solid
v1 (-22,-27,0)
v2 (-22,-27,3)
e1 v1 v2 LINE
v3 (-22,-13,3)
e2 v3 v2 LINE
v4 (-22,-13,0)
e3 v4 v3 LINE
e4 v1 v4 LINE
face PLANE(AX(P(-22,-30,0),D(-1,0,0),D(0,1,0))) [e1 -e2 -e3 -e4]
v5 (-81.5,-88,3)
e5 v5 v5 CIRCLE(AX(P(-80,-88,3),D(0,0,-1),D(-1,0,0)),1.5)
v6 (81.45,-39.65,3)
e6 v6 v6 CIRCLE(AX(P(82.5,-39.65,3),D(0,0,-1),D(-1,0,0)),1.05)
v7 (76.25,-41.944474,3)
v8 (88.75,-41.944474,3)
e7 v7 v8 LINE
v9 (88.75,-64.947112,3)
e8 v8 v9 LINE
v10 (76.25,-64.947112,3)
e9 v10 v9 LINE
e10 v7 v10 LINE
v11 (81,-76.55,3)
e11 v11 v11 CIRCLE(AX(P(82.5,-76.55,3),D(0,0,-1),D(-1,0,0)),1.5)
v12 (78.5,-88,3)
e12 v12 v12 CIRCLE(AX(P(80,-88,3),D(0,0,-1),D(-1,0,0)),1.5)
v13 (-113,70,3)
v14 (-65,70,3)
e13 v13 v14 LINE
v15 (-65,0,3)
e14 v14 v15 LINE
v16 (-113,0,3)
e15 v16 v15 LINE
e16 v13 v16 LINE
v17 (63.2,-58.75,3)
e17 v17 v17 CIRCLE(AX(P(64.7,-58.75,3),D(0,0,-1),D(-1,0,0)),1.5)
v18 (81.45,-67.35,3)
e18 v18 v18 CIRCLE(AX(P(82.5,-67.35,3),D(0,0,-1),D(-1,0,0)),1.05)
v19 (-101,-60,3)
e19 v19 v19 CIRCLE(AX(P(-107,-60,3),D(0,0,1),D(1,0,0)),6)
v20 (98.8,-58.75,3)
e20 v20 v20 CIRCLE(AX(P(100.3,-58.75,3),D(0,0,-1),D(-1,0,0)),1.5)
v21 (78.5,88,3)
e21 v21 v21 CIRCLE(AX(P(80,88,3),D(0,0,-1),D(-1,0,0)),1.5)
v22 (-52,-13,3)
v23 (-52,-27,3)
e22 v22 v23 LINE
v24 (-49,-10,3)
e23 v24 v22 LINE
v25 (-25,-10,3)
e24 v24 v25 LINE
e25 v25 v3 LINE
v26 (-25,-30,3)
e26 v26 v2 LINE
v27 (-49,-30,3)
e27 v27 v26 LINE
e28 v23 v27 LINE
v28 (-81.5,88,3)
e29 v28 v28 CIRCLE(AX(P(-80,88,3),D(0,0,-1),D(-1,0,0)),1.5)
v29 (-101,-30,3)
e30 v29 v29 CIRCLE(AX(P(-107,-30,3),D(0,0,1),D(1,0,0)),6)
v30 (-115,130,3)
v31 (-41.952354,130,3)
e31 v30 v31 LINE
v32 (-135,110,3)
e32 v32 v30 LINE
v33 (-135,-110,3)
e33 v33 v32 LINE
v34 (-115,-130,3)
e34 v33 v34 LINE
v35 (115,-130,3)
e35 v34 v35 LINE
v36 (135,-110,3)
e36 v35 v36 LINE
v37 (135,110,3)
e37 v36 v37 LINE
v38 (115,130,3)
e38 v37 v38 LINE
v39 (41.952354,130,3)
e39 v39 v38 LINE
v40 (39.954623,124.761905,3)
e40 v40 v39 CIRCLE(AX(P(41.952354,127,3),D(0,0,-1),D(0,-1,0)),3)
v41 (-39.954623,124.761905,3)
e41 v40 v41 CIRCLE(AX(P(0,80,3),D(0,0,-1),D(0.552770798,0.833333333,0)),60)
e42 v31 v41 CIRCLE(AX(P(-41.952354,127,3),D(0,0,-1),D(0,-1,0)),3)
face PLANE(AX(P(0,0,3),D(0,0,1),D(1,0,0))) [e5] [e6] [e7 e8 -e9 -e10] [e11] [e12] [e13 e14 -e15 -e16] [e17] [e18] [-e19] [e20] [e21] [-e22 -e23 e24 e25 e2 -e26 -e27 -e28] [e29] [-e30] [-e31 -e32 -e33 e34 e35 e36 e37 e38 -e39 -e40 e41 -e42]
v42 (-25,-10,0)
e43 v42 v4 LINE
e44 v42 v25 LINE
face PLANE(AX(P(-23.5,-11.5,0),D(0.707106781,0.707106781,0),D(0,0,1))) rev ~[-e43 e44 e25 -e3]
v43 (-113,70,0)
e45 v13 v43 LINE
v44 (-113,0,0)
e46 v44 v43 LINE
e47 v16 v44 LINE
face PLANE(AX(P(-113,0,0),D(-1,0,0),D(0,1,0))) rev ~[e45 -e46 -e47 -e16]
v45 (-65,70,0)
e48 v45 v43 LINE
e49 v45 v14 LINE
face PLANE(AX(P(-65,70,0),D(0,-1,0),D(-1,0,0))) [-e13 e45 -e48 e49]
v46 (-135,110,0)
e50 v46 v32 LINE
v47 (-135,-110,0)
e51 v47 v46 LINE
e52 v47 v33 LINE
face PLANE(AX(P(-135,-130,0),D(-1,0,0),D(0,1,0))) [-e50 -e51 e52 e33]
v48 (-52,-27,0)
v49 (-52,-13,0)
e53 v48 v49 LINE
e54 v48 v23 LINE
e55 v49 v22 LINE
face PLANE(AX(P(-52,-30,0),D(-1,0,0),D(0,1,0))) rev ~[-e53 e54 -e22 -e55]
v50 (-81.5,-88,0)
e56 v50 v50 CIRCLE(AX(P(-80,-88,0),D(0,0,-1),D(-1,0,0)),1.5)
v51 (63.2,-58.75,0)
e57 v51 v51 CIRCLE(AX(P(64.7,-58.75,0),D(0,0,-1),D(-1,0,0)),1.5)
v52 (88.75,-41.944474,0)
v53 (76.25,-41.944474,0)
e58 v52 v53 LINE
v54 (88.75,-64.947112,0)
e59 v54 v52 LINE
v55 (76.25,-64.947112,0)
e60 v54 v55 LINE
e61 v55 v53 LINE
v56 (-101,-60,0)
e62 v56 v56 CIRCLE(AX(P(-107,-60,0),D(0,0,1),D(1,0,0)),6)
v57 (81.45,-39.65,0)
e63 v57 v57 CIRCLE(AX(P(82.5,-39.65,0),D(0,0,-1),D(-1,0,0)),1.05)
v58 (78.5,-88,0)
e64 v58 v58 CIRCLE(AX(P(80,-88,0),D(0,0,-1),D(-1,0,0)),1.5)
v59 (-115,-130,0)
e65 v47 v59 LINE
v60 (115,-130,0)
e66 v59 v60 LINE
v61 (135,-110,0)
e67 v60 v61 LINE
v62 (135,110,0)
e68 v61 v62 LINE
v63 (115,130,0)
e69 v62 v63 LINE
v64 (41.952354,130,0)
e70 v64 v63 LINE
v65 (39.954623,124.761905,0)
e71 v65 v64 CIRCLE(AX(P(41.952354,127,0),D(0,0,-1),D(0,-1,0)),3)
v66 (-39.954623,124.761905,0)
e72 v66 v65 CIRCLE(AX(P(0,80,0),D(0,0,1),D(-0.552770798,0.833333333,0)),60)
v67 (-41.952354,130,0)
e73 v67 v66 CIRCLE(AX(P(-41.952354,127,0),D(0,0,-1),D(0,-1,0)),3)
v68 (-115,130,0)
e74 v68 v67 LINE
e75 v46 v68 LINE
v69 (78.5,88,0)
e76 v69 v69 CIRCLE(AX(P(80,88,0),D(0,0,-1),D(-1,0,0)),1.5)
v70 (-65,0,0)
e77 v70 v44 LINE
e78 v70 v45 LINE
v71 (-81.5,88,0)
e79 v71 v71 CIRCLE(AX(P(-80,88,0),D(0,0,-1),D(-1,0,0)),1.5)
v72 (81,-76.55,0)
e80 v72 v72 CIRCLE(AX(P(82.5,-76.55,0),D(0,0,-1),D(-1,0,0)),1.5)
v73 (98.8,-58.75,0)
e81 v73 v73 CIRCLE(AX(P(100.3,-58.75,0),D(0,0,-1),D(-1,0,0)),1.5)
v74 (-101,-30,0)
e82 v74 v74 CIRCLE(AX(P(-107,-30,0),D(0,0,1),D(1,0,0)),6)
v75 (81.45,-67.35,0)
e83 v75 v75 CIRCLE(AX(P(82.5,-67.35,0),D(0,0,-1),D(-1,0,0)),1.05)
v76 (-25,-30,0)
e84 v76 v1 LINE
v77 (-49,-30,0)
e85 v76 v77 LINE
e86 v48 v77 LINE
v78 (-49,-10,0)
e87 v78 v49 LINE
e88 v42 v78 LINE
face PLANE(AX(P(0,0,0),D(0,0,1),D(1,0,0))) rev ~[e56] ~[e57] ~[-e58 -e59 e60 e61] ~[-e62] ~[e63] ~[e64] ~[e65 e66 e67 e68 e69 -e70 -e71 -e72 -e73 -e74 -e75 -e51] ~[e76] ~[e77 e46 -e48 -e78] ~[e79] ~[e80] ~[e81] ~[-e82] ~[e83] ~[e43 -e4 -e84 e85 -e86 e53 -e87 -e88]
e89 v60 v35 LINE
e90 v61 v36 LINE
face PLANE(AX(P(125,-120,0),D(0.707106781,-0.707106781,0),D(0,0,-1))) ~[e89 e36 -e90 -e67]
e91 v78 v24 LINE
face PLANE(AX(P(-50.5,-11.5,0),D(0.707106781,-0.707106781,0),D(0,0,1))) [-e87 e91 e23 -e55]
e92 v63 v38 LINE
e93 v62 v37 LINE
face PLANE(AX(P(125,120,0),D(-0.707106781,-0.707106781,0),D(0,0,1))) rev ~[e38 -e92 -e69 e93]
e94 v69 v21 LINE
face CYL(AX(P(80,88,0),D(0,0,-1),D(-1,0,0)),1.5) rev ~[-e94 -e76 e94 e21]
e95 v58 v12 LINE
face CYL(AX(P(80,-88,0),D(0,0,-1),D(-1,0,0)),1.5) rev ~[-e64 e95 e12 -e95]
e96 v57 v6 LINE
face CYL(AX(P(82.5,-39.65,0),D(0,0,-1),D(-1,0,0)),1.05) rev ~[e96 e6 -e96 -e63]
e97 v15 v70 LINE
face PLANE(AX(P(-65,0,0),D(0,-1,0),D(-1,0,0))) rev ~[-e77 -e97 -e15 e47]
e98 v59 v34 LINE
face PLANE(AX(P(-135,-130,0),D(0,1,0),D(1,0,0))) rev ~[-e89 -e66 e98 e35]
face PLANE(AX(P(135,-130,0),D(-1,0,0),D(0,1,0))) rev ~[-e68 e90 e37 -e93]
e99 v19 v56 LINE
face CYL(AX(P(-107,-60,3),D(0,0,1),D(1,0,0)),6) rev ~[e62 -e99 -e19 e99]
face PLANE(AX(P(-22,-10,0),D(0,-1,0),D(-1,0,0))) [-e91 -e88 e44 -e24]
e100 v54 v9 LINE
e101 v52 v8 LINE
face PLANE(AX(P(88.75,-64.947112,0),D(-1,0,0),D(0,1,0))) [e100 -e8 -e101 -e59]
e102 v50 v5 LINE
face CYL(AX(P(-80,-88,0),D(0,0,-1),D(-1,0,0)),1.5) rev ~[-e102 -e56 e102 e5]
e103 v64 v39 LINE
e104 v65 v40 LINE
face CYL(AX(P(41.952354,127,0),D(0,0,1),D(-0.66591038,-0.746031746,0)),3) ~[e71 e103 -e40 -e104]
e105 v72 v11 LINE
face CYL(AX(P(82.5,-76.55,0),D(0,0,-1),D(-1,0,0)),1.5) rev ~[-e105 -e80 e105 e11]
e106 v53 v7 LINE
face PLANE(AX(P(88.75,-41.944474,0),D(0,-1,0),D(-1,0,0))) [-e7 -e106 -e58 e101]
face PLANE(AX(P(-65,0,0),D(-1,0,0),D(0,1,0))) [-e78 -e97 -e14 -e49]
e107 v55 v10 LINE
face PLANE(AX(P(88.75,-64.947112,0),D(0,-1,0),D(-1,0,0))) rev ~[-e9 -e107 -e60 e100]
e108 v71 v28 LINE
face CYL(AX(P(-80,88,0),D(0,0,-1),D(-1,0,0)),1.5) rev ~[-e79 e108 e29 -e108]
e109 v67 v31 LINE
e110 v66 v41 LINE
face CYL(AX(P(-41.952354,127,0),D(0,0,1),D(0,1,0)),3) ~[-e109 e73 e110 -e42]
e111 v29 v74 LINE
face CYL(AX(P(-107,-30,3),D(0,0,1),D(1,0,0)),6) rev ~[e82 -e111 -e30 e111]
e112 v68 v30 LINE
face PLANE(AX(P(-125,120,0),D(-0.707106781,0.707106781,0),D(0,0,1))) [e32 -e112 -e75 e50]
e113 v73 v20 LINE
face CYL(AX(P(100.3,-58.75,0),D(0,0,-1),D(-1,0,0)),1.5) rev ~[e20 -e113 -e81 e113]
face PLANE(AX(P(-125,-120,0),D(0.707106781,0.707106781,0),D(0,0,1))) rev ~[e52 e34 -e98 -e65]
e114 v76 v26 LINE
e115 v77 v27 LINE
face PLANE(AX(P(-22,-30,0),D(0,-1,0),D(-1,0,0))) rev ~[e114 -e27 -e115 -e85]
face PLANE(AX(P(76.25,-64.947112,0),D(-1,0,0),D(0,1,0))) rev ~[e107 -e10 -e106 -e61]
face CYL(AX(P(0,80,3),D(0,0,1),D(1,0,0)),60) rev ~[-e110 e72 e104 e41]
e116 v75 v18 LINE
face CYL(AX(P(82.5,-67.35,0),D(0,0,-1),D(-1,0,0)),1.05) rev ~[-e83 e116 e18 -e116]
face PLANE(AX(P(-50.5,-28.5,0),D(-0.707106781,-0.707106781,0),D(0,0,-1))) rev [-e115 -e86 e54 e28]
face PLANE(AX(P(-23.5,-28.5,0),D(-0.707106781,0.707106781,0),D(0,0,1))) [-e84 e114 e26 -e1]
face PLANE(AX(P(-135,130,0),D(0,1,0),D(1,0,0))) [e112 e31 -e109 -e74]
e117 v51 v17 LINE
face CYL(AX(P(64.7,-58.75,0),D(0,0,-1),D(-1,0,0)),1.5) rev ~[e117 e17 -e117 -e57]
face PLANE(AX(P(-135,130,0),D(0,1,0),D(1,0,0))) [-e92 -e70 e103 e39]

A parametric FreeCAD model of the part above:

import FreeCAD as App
import Part
import Sketcher

V = App.Vector
Q = App.Units.Quantity


def edges_at(feature, points):
    """Names of the edges that pass closest to the given points."""
    edges = feature.Shape.Edges
    near = lambda p: min(range(len(edges)), key=lambda i: edges[i].distToShape(Part.Vertex(*p))[0])
    return sorted({f"Edge{near(p) + 1}" for p in points})


def add_polygon(sketch, points):
    """Adds a closed chain of lines whose ends are joined by coincident constraints."""
    first, n = sketch.GeometryCount, len(points)
    for a, b in zip(points, points[1:] + points[:1]):
        sketch.addGeometry(Part.LineSegment(App.Vector(*a, 0), App.Vector(*b, 0)), False)
    for i in range(n):
        sketch.addConstraint(Sketcher.Constraint("Coincident", first + i, 2, first + (i + 1) % n, 1))

doc = App.newDocument("Part")
body = doc.addObject("PartDesign::Body", "Body")

sketch1 = body.newObject("Sketcher::SketchObject", "Sketch")
sketch1.AttachmentSupport = (doc.getObject("XY_Plane"), [""])
sketch1.MapMode = "FlatFace"
add_polygon(sketch1, [(-135, 130), (-135, -130), (135, -130), (135, 130)])
sketch1.addConstraint([
    Sketcher.Constraint("Vertical", 0),
    Sketcher.Constraint("Horizontal", 1),
    Sketcher.Constraint("Vertical", 2),
    Sketcher.Constraint("Horizontal", 3),
    Sketcher.Constraint("Symmetric", 0, 2, 2, 2, -1, 1),
    Sketcher.Constraint("DistanceX", 1, 1, 1, 2, Q("270 mm")),
    Sketcher.Constraint("DistanceY", 0, 2, 0, 1, Q("260 mm")),
])
pad1 = body.newObject("PartDesign::Pad", "Pad")
pad1.Profile = sketch1
pad1.Length = 3
doc.recompute()

chamfer = body.newObject("PartDesign::Chamfer", "Chamfer")
chamfer.Base = (pad1, edges_at(pad1, [
    (135, -130, 1.5),
    (-135, -130, 1.5),
    (-135, 130, 1.5),
    (135, 130, 1.5),
]))
chamfer.Size = 20

sketch2 = body.newObject("Sketcher::SketchObject", "Sketch001")
sketch2.AttachmentSupport = (doc.getObject("XY_Plane"), [""])
sketch2.MapMode = "FlatFace"
sketch2.AttachmentOffset = App.Placement(V(0, 0, 3), App.Rotation())
sketch2.addGeometry(Part.Circle(V(0, 80, 0), V(0, 0, 1), 60), False)
sketch2.addConstraint([
    Sketcher.Constraint("PointOnObject", 0, 3, -2),
    Sketcher.Constraint("Diameter", 0, Q("120 mm")),
    Sketcher.Constraint("DistanceY", -1, 1, 0, 3, Q("80 mm")),
])
pocket1 = body.newObject("PartDesign::Pocket", "Pocket")
pocket1.Profile = sketch2
pocket1.Length = 10
doc.recompute()

fillet = body.newObject("PartDesign::Fillet", "Fillet")
fillet.Base = (pocket1, edges_at(pocket1, [(33.166, 130, 1.5), (-33.166, 130, 1.5)]))
fillet.Radius = 3

sketch3 = body.newObject("Sketcher::SketchObject", "Sketch002")
sketch3.AttachmentSupport = (doc.getObject("XY_Plane"), [""])
sketch3.MapMode = "FlatFace"
sketch3.addGeometry(Part.Circle(V(64.7, -58.8, 0), V(0, 0, 1), 1.5), False)
sketch3.addGeometry(Part.Circle(V(100.3, -58.8, 0), V(0, 0, 1), 1.5), False)
sketch3.addGeometry(Part.Circle(V(82.5, -76.5, 0), V(0, 0, 1), 1.5), False)
sketch3.addGeometry(Part.Circle(V(82.5, -39.6, 0), V(0, 0, 1), 1.1), False)
sketch3.addGeometry(Part.Circle(V(82.5, -67.3, 0), V(0, 0, 1), 1.1), False)
add_polygon(sketch3, [(88.8, -41.9), (88.8, -64.9), (76.2, -64.9), (76.2, -41.9)])
sketch3.addConstraint([
    Sketcher.Constraint("Vertical", 5),
    Sketcher.Constraint("Horizontal", 6),
    Sketcher.Constraint("Vertical", 7),
    Sketcher.Constraint("Horizontal", 8),
    Sketcher.Constraint("Equal", 0, 1),
    Sketcher.Constraint("Equal", 1, 2),
    Sketcher.Constraint("Equal", 3, 4),
    Sketcher.Constraint("Horizontal", 0, 3, 1, 3),
    Sketcher.Constraint("Vertical", 2, 3, 3, 3),
    Sketcher.Constraint("Vertical", 3, 3, 4, 3),
    Sketcher.Constraint("Diameter", 0, Q("3 mm")),
    Sketcher.Constraint("Diameter", 3, Q("2.1 mm")),
    Sketcher.Constraint("DistanceX", 6, 2, 6, 1, Q("12.5 mm")),
    Sketcher.Constraint("DistanceX", -1, 1, 0, 3, Q("64.7 mm")),
    Sketcher.Constraint("DistanceX", -1, 1, 1, 3, Q("100.3 mm")),
    Sketcher.Constraint("DistanceX", -1, 1, 2, 3, Q("82.5 mm")),
    Sketcher.Constraint("DistanceY", 2, 3, 0, 3, Q("17.8 mm")),
    Sketcher.Constraint("DistanceY", 0, 3, 3, 3, Q("19.1 mm")),
    Sketcher.Constraint("DistanceY", 2, 3, 4, 3, Q("9.2 mm")),
    Sketcher.Constraint("DistanceY", 0, 3, -1, 1, Q("58.75 mm")),
    Sketcher.Constraint("DistanceX", -1, 1, 5, 2, Q("88.75 mm")),
    Sketcher.Constraint("DistanceY", 5, 2, 5, 1, Q("23.002638 mm")),
    Sketcher.Constraint("DistanceY", 5, 2, -1, 1, Q("64.947112 mm")),
])
pocket2 = body.newObject("PartDesign::Pocket", "Pocket001")
pocket2.Profile = sketch3
pocket2.Length = 10
pocket2.Reversed = True

sketch4 = body.newObject("Sketcher::SketchObject", "Sketch003")
sketch4.AttachmentSupport = (doc.getObject("XY_Plane"), [""])
sketch4.MapMode = "FlatFace"
add_polygon(sketch4, [(-65, 70), (-65, 0), (-113, 0), (-113, 70)])
sketch4.addConstraint([
    Sketcher.Constraint("Vertical", 0),
    Sketcher.Constraint("Horizontal", 1),
    Sketcher.Constraint("Vertical", 2),
    Sketcher.Constraint("Horizontal", 3),
    Sketcher.Constraint("PointOnObject", 0, 2, -1),
    Sketcher.Constraint("DistanceX", 1, 2, 1, 1, Q("48 mm")),
    Sketcher.Constraint("DistanceY", 0, 2, 0, 1, Q("70 mm")),
    Sketcher.Constraint("DistanceX", 0, 2, -1, 1, Q("65 mm")),
])
pocket3 = body.newObject("PartDesign::Pocket", "Pocket002")
pocket3.Profile = sketch4
pocket3.Length = 0.1
pocket3.Reversed = True

sketch5 = body.newObject("Sketcher::SketchObject", "Sketch004")
sketch5.AttachmentSupport = (doc.getObject("XY_Plane"), [""])
sketch5.MapMode = "FlatFace"
add_polygon(sketch5, [(-65, 70), (-65, 0), (-113, 0), (-113, 70)])
sketch5.addConstraint([
    Sketcher.Constraint("Vertical", 0),
    Sketcher.Constraint("Horizontal", 1),
    Sketcher.Constraint("Vertical", 2),
    Sketcher.Constraint("Horizontal", 3),
    Sketcher.Constraint("PointOnObject", 0, 2, -1),
    Sketcher.Constraint("DistanceX", 1, 2, 1, 1, Q("48 mm")),
    Sketcher.Constraint("DistanceY", 0, 2, 0, 1, Q("70 mm")),
    Sketcher.Constraint("DistanceX", 0, 2, -1, 1, Q("65 mm")),
])
pocket4 = body.newObject("PartDesign::Pocket", "Pocket003")
pocket4.Profile = sketch5
pocket4.Type = "ThroughAll"
pocket4.Reversed = True

sketch6 = body.newObject("Sketcher::SketchObject", "Sketch005")
sketch6.AttachmentSupport = (doc.getObject("XY_Plane"), [""])
sketch6.MapMode = "FlatFace"
sketch6.AttachmentOffset = App.Placement(V(0, 0, 3), App.Rotation())
sketch6.addGeometry([
    Part.Circle(V(-107, -30, 0), V(0, 0, 1), 6),
    Part.Circle(V(-107, -60, 0), V(0, 0, 1), 6),
], False)
sketch6.addConstraint([
    Sketcher.Constraint("Equal", 0, 1),
    Sketcher.Constraint("Vertical", 0, 3, 1, 3),
    Sketcher.Constraint("Diameter", 0, Q("12 mm")),
    Sketcher.Constraint("DistanceX", 0, 3, -1, 1, Q("107 mm")),
    Sketcher.Constraint("DistanceY", 0, 3, -1, 1, Q("30 mm")),
    Sketcher.Constraint("DistanceY", 1, 3, -1, 1, Q("60 mm")),
])
pocket5 = body.newObject("PartDesign::Pocket", "Pocket004")
pocket5.Profile = sketch6
pocket5.Type = "ThroughAll"

sketch7 = body.newObject("Sketcher::SketchObject", "Sketch006")
sketch7.AttachmentSupport = (doc.getObject("XY_Plane"), [""])
sketch7.MapMode = "FlatFace"
sketch7.addGeometry([
    Part.Circle(V(-80, 88, 0), V(0, 0, 1), 1.5),
    Part.Circle(V(-80, -88, 0), V(0, 0, 1), 1.5),
    Part.Circle(V(80, -88, 0), V(0, 0, 1), 1.5),
    Part.Circle(V(80, 88, 0), V(0, 0, 1), 1.5),
], False)
sketch7.addConstraint([
    Sketcher.Constraint("Equal", 0, 1),
    Sketcher.Constraint("Equal", 1, 2),
    Sketcher.Constraint("Equal", 2, 3),
    Sketcher.Constraint("Symmetric", 0, 3, 2, 3, -1, 1),
    Sketcher.Constraint("Symmetric", 1, 3, 3, 3, -1, 1),
    Sketcher.Constraint("Symmetric", 1, 3, 2, 3, -2),
    Sketcher.Constraint("Diameter", 0, Q("3 mm")),
    Sketcher.Constraint("DistanceX", 0, 3, -1, 1, Q("80 mm")),
    Sketcher.Constraint("DistanceY", -1, 1, 0, 3, Q("88 mm")),
])
pocket6 = body.newObject("PartDesign::Pocket", "Pocket005")
pocket6.Profile = sketch7
pocket6.Type = "ThroughAll"
pocket6.Reversed = True

sketch8 = body.newObject("Sketcher::SketchObject", "Sketch007")
sketch8.AttachmentSupport = (doc.getObject("XY_Plane"), [""])
sketch8.MapMode = "FlatFace"
add_polygon(sketch8, [(-22, -10), (-22, -30), (-52, -30), (-52, -10)])
sketch8.addConstraint([
    Sketcher.Constraint("Vertical", 0),
    Sketcher.Constraint("Horizontal", 1),
    Sketcher.Constraint("Vertical", 2),
    Sketcher.Constraint("Horizontal", 3),
    Sketcher.Constraint("DistanceX", 1, 2, 1, 1, Q("30 mm")),
    Sketcher.Constraint("DistanceY", 0, 2, 0, 1, Q("20 mm")),
    Sketcher.Constraint("DistanceX", 0, 2, -1, 1, Q("22 mm")),
    Sketcher.Constraint("DistanceY", 0, 2, -1, 1, Q("30 mm")),
])
pocket7 = body.newObject("PartDesign::Pocket", "Pocket006")
pocket7.Profile = sketch8
pocket7.Type = "ThroughAll"
pocket7.Reversed = True
doc.recompute()

chamfer2 = body.newObject("PartDesign::Chamfer", "Chamfer001")
chamfer2.Base = (pocket7, edges_at(pocket7, [
    (-22, -30, 1.5),
    (-22, -10, 1.5),
    (-52, -10, 1.5),
    (-52, -30, 1.5),
]))
chamfer2.Size = 3

doc.recompute()
